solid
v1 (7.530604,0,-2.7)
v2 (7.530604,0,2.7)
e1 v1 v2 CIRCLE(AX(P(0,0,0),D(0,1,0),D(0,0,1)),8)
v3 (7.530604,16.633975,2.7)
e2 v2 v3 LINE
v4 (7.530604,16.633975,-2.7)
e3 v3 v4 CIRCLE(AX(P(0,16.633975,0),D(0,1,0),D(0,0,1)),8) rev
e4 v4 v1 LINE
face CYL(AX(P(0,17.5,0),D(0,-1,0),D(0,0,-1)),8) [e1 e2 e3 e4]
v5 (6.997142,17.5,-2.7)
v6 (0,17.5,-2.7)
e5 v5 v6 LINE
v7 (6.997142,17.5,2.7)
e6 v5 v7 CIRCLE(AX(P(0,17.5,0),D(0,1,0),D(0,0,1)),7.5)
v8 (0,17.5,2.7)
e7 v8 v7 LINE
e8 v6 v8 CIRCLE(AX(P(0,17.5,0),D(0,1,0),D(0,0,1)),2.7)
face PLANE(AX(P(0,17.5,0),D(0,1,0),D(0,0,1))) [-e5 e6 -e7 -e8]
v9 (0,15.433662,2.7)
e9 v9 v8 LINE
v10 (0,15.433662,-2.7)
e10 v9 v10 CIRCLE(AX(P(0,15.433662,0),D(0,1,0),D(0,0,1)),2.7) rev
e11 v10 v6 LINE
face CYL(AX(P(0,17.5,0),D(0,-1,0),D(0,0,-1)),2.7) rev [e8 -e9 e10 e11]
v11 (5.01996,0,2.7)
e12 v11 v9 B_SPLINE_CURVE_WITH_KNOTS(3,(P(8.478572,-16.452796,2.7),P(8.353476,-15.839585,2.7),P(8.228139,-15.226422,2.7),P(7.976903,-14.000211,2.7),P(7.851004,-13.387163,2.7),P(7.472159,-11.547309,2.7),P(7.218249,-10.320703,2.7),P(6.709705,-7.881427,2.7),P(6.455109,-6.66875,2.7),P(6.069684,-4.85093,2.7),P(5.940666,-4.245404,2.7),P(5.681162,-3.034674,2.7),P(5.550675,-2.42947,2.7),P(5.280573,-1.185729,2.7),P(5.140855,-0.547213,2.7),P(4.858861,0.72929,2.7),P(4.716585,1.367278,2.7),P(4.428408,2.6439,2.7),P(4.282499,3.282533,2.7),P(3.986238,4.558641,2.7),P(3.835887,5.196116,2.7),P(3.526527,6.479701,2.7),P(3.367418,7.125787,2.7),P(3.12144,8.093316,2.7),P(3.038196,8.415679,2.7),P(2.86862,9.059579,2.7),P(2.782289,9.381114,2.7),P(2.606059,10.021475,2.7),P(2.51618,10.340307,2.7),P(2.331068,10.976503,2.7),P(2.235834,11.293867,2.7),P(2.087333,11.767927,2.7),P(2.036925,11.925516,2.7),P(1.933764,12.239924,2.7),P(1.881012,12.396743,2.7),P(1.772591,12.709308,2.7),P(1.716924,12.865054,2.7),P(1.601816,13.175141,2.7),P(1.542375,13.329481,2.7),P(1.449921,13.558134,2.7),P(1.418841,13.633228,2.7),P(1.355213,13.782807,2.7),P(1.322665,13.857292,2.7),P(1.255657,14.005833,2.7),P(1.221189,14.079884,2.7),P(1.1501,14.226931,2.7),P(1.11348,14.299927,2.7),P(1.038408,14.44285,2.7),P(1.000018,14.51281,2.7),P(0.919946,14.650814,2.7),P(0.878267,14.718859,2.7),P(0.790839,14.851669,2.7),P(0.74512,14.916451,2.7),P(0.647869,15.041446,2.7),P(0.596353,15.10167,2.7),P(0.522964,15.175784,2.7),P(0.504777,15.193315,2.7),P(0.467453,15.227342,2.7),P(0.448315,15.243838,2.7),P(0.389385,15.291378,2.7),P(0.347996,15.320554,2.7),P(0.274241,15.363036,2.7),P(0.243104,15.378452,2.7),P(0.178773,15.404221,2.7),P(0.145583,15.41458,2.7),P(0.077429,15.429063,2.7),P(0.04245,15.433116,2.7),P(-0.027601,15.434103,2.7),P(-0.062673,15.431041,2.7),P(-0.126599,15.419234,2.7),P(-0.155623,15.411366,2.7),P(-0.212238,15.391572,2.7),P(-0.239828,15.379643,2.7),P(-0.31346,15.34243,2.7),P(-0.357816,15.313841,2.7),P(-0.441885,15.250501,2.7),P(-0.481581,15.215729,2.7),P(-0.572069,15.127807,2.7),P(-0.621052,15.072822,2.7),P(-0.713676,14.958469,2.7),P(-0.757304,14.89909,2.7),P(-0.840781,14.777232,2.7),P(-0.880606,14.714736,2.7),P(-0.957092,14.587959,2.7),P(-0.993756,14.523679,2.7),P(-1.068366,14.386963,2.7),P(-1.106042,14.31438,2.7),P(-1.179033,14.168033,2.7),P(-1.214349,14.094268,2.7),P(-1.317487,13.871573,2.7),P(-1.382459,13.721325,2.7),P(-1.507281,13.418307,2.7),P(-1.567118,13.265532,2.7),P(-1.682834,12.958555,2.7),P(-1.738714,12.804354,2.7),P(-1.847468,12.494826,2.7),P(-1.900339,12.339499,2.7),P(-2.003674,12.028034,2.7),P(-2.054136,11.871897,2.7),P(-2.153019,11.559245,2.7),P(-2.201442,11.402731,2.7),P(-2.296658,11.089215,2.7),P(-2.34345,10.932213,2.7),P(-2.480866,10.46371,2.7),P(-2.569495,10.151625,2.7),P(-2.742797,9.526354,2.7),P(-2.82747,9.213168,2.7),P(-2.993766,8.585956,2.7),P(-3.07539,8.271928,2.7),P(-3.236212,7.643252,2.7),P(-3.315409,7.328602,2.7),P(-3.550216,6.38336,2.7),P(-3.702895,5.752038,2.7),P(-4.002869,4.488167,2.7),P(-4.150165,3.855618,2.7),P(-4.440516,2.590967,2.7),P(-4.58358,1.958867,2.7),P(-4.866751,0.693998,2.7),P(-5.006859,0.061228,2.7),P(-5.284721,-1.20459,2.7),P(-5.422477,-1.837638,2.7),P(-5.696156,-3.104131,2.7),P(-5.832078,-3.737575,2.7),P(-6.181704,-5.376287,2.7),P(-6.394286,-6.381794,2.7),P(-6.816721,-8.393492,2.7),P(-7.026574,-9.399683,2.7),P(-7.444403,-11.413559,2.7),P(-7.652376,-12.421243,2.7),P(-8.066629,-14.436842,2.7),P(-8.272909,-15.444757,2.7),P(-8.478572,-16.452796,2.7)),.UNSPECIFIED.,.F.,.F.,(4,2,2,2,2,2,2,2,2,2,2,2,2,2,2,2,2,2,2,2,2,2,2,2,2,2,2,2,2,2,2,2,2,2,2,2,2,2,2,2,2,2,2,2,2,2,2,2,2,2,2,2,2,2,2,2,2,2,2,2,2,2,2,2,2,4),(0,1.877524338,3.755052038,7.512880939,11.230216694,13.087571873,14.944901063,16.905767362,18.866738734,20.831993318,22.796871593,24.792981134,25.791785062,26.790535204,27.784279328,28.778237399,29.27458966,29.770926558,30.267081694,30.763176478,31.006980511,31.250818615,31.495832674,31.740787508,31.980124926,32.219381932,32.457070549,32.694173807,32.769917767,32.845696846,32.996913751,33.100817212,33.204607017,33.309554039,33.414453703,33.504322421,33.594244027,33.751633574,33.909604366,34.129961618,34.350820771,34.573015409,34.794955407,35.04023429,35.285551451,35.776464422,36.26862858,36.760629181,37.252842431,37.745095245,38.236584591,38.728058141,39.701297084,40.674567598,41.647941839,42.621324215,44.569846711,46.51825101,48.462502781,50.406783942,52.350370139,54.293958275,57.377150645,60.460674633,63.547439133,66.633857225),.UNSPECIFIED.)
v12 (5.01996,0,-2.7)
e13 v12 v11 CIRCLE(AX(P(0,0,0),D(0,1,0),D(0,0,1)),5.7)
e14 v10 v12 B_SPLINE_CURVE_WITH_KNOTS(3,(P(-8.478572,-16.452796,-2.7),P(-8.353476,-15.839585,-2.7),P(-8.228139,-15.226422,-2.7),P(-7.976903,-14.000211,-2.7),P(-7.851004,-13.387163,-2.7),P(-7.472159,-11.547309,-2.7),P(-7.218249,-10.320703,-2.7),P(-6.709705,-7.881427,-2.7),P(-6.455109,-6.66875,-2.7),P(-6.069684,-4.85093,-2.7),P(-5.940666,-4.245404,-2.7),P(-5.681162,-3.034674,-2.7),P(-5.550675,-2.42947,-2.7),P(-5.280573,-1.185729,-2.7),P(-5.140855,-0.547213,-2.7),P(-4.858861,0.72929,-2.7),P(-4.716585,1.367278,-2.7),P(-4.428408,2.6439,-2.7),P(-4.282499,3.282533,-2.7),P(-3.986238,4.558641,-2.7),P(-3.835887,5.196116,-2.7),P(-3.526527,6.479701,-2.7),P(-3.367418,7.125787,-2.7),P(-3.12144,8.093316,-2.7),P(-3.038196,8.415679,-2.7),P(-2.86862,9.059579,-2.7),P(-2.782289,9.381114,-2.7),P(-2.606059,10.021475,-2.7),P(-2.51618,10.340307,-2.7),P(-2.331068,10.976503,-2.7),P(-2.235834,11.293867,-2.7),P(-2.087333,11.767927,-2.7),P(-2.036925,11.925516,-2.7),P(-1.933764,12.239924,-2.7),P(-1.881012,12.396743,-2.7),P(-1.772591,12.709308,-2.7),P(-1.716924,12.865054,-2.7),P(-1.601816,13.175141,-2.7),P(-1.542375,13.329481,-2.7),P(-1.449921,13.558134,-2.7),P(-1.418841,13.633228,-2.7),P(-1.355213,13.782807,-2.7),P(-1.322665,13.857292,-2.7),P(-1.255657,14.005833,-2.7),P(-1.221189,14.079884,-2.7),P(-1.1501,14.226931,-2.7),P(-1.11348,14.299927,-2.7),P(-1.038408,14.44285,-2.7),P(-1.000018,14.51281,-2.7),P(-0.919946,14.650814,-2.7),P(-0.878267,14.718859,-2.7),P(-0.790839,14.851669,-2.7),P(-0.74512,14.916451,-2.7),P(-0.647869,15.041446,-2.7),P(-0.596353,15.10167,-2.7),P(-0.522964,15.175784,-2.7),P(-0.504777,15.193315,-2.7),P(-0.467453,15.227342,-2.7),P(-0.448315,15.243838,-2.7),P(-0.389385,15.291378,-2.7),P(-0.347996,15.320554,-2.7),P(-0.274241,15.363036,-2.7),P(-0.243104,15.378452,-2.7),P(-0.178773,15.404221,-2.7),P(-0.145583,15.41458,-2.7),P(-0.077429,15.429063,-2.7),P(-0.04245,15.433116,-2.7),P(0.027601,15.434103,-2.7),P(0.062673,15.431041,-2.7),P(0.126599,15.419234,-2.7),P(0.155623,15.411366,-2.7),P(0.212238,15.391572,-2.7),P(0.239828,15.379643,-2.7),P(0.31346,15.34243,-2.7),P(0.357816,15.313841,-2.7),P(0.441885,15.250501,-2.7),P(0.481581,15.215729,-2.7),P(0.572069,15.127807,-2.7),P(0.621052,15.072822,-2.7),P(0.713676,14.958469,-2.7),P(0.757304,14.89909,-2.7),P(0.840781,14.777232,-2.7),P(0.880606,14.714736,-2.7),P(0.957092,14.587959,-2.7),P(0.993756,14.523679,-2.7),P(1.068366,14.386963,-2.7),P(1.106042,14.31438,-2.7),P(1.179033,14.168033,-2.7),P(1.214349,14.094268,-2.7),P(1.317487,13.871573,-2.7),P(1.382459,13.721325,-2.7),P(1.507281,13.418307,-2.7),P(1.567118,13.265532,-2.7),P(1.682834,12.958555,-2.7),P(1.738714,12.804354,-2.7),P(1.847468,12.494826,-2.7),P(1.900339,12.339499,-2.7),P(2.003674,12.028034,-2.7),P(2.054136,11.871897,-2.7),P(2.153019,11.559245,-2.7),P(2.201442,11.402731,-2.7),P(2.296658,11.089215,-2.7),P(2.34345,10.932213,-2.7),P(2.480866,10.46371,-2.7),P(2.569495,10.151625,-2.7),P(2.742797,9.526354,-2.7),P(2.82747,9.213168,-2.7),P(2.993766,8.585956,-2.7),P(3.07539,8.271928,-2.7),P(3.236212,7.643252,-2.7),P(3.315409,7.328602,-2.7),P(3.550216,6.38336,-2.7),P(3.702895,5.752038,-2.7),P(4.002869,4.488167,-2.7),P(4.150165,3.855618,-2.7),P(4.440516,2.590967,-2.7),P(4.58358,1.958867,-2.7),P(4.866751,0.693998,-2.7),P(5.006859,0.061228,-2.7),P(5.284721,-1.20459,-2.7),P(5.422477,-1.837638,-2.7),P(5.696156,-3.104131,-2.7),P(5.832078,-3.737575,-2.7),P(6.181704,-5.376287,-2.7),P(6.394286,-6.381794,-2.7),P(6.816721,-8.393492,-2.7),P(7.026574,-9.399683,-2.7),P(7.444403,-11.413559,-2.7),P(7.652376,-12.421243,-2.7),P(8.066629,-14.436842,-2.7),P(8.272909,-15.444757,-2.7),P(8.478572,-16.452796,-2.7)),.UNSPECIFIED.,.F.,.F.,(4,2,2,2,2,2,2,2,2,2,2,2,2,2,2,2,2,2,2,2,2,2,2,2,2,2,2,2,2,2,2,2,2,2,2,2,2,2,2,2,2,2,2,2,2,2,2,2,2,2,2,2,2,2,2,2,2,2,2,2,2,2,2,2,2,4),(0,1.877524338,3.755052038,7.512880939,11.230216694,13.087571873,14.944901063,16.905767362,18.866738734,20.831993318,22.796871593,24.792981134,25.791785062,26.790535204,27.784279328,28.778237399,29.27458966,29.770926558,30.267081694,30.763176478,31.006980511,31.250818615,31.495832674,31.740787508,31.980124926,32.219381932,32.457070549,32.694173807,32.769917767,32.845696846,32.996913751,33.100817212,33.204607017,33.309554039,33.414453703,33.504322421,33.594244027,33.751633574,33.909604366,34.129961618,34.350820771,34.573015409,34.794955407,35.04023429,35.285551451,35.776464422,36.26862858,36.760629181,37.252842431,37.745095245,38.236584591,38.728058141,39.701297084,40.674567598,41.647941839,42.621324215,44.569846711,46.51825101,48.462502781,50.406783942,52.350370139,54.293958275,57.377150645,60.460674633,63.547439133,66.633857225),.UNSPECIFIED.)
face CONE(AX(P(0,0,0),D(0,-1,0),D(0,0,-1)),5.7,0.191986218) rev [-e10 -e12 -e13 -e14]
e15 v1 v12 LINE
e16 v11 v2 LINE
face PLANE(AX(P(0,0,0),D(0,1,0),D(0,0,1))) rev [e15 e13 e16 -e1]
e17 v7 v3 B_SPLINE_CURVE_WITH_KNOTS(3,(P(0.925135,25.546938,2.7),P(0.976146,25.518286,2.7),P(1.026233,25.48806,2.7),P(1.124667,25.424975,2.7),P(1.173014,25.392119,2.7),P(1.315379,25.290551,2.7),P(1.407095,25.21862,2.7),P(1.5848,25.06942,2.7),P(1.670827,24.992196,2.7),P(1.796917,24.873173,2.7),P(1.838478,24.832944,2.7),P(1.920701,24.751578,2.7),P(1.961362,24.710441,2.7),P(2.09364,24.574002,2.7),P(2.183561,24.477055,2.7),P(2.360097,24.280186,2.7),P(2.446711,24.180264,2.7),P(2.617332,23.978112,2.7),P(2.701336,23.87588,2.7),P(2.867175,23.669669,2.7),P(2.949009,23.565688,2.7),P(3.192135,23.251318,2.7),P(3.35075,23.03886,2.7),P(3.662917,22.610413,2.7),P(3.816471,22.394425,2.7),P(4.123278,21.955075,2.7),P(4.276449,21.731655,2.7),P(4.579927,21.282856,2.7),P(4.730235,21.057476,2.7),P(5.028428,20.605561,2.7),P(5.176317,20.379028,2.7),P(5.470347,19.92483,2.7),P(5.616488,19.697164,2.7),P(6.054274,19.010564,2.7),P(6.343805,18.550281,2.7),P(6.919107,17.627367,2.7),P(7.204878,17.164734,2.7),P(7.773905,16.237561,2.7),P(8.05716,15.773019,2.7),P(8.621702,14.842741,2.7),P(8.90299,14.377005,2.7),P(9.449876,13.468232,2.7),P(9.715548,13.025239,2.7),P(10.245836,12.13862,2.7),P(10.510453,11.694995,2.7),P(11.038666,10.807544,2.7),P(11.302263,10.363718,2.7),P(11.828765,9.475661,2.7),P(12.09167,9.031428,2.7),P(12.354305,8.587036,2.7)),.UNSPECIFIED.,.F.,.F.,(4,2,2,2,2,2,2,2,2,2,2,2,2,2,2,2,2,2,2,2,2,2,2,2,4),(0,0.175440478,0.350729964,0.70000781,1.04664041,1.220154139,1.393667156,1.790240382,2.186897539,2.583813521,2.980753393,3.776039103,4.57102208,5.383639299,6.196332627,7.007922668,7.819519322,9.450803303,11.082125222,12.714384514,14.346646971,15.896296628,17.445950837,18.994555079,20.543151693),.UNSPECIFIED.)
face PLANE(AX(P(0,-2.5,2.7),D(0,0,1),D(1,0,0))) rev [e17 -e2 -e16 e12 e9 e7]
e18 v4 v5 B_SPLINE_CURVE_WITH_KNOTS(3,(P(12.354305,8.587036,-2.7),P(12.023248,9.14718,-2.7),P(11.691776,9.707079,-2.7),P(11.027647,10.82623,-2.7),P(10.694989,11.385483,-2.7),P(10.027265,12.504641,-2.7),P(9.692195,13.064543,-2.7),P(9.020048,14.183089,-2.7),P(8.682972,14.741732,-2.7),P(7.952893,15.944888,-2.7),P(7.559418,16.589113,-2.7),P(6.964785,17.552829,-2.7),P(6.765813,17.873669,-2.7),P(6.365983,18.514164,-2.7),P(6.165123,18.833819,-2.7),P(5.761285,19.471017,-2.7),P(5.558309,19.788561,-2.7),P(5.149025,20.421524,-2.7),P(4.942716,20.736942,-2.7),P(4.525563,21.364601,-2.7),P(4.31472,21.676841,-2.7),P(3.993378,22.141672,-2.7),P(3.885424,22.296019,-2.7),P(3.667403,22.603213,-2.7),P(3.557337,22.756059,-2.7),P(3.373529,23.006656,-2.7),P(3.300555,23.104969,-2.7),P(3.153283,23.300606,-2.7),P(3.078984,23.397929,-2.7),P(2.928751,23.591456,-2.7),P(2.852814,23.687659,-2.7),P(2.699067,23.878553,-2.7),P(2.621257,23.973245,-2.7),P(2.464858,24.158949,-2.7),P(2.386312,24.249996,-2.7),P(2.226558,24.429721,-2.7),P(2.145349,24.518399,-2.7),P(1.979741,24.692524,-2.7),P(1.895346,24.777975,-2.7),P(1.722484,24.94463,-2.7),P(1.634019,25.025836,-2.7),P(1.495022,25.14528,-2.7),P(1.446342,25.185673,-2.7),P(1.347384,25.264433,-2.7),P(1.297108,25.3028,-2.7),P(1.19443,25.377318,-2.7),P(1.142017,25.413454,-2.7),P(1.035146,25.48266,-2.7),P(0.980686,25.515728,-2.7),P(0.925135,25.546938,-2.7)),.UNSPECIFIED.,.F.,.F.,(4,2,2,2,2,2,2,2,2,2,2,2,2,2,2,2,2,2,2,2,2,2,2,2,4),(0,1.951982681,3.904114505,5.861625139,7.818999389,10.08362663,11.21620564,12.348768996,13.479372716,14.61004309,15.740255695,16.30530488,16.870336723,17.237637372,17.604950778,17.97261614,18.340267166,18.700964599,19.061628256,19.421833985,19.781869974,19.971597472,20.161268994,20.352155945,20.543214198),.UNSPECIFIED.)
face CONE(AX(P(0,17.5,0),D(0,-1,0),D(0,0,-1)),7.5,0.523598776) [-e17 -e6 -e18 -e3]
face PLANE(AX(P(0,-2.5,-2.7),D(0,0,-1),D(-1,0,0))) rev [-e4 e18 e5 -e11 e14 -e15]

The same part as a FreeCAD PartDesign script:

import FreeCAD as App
import Part
import Sketcher


def edges_at(feature, points):
    """Names of the edges that pass closest to the given points."""
    edges = feature.Shape.Edges
    near = lambda p: min(range(len(edges)), key=lambda i: edges[i].distToShape(Part.Vertex(*p))[0])
    return sorted({f"Edge{near(p) + 1}" for p in points})


def add_polygon(sketch, points):
    """Adds a closed chain of lines whose ends are joined by coincident constraints."""
    first, n = sketch.GeometryCount, len(points)
    for a, b in zip(points, points[1:] + points[:1]):
        sketch.addGeometry(Part.LineSegment(App.Vector(*a, 0), App.Vector(*b, 0)), False)
    for i in range(n):
        sketch.addConstraint(Sketcher.Constraint("Coincident", first + i, 2, first + (i + 1) % n, 1))

doc = App.newDocument("Part")
params = doc.addObject("Spreadsheet::Sheet", "Params")
for row, (alias, value) in enumerate([
    ("sketch1_diameter", "16 mm"),
    ("sketch1_diameter2", "5.4 mm"),
    ("pad1_length", "17.5 mm"),
    ("chamfer_size", "3 mm"),
    ("chamfer_size2", "15.433662 mm"),
    ("chamfer2_size", "0.5 mm"),
    ("chamfer2_size2", "0.866025 mm"),
    ("sketch2_height", "5.4 mm"),
    ("pocket1_length", "20 mm"),
], start=1):
    params.set(f"A{row}", alias)
    params.set(f"B{row}", "=" + value)
    params.setAlias(f"B{row}", alias)

body = doc.addObject("PartDesign::Body", "Body")

# Sketch on XZ plane
sketch1 = body.newObject("Sketcher::SketchObject", "Sketch")
sketch1.AttachmentSupport = (doc.getObject("XZ_Plane"), [""])
sketch1.MapMode = "FlatFace"
sketch1.addGeometry([
    Part.Circle(App.Vector(0, 0, 0), App.Vector(0, 0, 1), 8),
    Part.Circle(App.Vector(0, 0, 0), App.Vector(0, 0, 1), 2.7),
], False)
sketch1.addConstraint([
    Sketcher.Constraint("Coincident", 0, 3, -1, 1),
    Sketcher.Constraint("Coincident", 1, 3, -1, 1),
    Sketcher.Constraint("Diameter", 0, 16.0),
    Sketcher.Constraint("Diameter", 1, 5.4),
])
sketch1.setExpression("Constraints[2]", "Params.sketch1_diameter")
sketch1.setExpression("Constraints[3]", "Params.sketch1_diameter2")
pad1 = body.newObject("PartDesign::Pad", "Pad")
pad1.Profile = sketch1
pad1.setExpression("Length", "Params.pad1_length")
pad1.Reversed = True
doc.recompute()

chamfer = body.newObject("PartDesign::Chamfer", "Chamfer")
chamfer.Base = (pad1, edges_at(pad1, [(0, 0, -2.7)]))
chamfer.ChamferType = "Two distances"
chamfer.setExpression("Size", "Params.chamfer_size")
chamfer.setExpression("Size2", "Params.chamfer_size2")
chamfer.FlipDirection = True
doc.recompute()

chamfer2 = body.newObject("PartDesign::Chamfer", "Chamfer001")
chamfer2.Base = (chamfer, edges_at(chamfer, [(0, 17.5, -8)]))
chamfer2.ChamferType = "Two distances"
chamfer2.setExpression("Size", "Params.chamfer2_size")
chamfer2.setExpression("Size2", "Params.chamfer2_size2")

# Sketch on XZ plane
sketch2 = body.newObject("Sketcher::SketchObject", "Sketch001")
sketch2.AttachmentSupport = (doc.getObject("XZ_Plane"), [""])
sketch2.MapMode = "FlatFace"
sketch2.AttachmentOffset = App.Placement(App.Vector(0, 0, -17.5), App.Rotation())
add_polygon(sketch2, [(0, -2.7), (0, 2.7), (11.380662, 2.7), (11.380662, -2.7)])  # lines 0-3
sketch2.addConstraint([
    Sketcher.Constraint("Vertical", 0),
    Sketcher.Constraint("Horizontal", 1),
    Sketcher.Constraint("Vertical", 2),
    Sketcher.Constraint("Horizontal", 3),
    Sketcher.Constraint("Symmetric", 0, 2, 3, 2, -1, 1),
    Sketcher.Constraint("DistanceY", 0, 1, 0, 2, 5.4),
    Sketcher.Constraint("DistanceX", 1, 1, 1, 2, 11.380662),
])
sketch2.setExpression("Constraints[9]", "Params.sketch2_height")
pocket1 = body.newObject("PartDesign::Pocket", "Pocket")
pocket1.Profile = sketch2
pocket1.setExpression("Length", "Params.pocket1_length")
pocket1.Reversed = True

doc.recompute()
